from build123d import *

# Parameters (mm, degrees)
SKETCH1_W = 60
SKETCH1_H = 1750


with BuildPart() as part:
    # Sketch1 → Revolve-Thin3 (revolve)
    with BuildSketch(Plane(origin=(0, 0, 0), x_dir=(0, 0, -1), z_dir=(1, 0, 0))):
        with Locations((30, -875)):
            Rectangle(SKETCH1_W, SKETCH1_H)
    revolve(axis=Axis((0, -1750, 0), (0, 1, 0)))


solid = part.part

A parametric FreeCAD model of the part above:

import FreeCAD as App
import Part
import Sketcher

V = App.Vector
Q = App.Units.Quantity


def add_polygon(sketch, points):
    """Adds a closed chain of lines whose ends are joined by coincident constraints."""
    first, n = sketch.GeometryCount, len(points)
    for a, b in zip(points, points[1:] + points[:1]):
        sketch.addGeometry(Part.LineSegment(App.Vector(*a, 0), App.Vector(*b, 0)), False)
    for i in range(n):
        sketch.addConstraint(Sketcher.Constraint("Coincident", first + i, 2, first + (i + 1) % n, 1))

doc = App.newDocument("Part")
body = doc.addObject("PartDesign::Body", "Body")

# Sketch on YZ plane
sketch1 = body.newObject("Sketcher::SketchObject", "Sketch")
sketch1.AttachmentSupport = (doc.getObject("YZ_Plane"), [""])
sketch1.MapMode = "FlatFace"
add_polygon(sketch1, [(0, 0), (-1750, 0), (-1750, -60), (0, -60)])  # lines 0-3
sketch1.addConstraint([
    Sketcher.Constraint("Horizontal", 0),
    Sketcher.Constraint("Vertical", 1),
    Sketcher.Constraint("Horizontal", 2),
    Sketcher.Constraint("Vertical", 3),
    Sketcher.Constraint("Coincident", 3, 2, -1, 1),
    Sketcher.Constraint("DistanceX", 0, 2, 0, 1, Q("1750 mm")),
    Sketcher.Constraint("DistanceY", 1, 2, 1, 1, Q("60 mm")),
])
revolution = body.newObject("PartDesign::Revolution", "Revolution")
revolution.Profile = sketch1
revolution.ReferenceAxis = (sketch1, ["H_Axis"])
revolution.Angle = 360

doc.recompute()
